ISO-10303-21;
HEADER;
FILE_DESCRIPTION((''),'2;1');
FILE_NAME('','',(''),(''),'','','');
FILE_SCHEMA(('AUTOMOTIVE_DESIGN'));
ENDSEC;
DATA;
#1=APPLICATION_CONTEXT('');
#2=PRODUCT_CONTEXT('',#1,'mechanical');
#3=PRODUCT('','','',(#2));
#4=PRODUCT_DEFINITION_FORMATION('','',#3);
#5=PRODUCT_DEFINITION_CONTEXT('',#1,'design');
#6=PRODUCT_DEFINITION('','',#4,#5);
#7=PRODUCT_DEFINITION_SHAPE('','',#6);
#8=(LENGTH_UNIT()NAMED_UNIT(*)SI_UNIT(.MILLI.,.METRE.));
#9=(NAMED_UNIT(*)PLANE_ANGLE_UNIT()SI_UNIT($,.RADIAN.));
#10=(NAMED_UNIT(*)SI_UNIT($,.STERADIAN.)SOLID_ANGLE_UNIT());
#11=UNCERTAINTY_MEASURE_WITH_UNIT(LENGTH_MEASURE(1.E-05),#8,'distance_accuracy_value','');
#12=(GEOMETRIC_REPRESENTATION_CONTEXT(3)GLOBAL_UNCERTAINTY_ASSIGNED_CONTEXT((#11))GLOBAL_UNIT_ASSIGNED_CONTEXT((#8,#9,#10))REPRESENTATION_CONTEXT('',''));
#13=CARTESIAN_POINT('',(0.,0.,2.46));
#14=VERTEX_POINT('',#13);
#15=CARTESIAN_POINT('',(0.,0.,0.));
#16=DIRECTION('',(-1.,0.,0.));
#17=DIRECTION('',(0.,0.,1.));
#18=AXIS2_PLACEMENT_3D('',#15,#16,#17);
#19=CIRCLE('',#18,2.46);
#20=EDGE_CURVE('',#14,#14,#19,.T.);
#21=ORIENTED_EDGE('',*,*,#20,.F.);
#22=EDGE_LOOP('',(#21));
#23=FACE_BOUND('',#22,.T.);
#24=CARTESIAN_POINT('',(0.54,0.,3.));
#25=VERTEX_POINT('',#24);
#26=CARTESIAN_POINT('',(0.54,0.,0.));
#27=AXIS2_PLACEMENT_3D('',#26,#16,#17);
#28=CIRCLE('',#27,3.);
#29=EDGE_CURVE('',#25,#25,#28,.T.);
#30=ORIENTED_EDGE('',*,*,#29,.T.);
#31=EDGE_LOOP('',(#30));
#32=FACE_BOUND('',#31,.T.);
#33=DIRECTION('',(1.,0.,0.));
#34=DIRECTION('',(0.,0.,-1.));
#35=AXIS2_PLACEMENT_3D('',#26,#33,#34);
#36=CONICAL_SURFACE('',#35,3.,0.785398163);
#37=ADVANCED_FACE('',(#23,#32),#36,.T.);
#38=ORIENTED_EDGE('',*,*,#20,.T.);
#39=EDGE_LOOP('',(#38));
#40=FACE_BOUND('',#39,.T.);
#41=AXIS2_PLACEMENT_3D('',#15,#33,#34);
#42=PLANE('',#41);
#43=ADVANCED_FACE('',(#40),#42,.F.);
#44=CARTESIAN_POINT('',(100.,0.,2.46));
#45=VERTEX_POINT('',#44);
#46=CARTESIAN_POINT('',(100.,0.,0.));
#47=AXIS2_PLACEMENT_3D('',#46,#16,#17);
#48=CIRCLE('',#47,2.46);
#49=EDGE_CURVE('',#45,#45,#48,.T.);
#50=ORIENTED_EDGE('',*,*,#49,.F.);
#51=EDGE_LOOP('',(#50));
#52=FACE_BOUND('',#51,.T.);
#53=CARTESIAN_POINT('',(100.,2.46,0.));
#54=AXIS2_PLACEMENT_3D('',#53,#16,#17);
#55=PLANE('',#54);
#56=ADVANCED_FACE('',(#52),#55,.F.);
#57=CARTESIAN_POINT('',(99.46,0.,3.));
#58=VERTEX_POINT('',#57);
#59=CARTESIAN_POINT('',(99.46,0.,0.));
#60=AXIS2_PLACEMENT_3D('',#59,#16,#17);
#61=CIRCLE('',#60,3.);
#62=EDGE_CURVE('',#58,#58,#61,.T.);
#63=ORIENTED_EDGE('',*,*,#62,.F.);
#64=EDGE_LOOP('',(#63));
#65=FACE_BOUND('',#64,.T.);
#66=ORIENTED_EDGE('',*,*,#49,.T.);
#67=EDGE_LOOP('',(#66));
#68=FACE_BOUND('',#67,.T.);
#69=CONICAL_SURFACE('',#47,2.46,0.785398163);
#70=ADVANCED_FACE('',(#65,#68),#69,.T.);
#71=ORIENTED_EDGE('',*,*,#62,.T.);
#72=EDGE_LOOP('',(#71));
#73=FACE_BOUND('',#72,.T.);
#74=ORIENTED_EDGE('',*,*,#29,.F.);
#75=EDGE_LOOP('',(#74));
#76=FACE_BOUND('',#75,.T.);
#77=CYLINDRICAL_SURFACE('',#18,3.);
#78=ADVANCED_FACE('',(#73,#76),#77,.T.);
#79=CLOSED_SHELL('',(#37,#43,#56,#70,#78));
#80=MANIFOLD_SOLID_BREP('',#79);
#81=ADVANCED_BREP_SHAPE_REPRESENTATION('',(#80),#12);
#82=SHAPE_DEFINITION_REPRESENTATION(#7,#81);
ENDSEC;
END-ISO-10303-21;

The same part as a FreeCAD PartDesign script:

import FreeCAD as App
import Part
import Sketcher

V = App.Vector
Q = App.Units.Quantity

doc = App.newDocument("Part")
body = doc.addObject("PartDesign::Body", "Body")

sketch1 = doc.addObject("Sketcher::SketchObject", "Sketch")
body.addObject(sketch1)
sketch1.AttachmentSupport = (doc.XY_Plane, [""])
sketch1.MapMode = "FlatFace"
sketch1.addGeometry([
    Part.LineSegment(V(0, 2.5, 0), V(0, 0, 0)),
    Part.LineSegment(V(0, 0, 0), V(100, 0, 0)),
    Part.LineSegment(V(100, 0, 0), V(100, 2.5, 0)),
    Part.LineSegment(V(100, 2.5, 0), V(99.5, 3, 0)),
    Part.LineSegment(V(99.5, 3, 0), V(0.5, 3, 0)),
    Part.LineSegment(V(0.5, 3, 0), V(0, 2.5, 0)),
], False)
sketch1.addConstraint([
    Sketcher.Constraint("Coincident", 0, 2, 1, 1),
    Sketcher.Constraint("Coincident", 1, 2, 2, 1),
    Sketcher.Constraint("Coincident", 2, 2, 3, 1),
    Sketcher.Constraint("Coincident", 3, 2, 4, 1),
    Sketcher.Constraint("Coincident", 4, 2, 5, 1),
    Sketcher.Constraint("Coincident", 5, 2, 0, 1),
    Sketcher.Constraint("Vertical", 0),
    Sketcher.Constraint("Horizontal", 1),
    Sketcher.Constraint("Vertical", 2),
    Sketcher.Constraint("Horizontal", 4),
    Sketcher.Constraint("Coincident", 0, 2, -1, 1),
    Sketcher.Constraint("Perpendicular", 3, 5),
    Sketcher.Constraint("Horizontal", 2, 2, 5, 2),
    Sketcher.Constraint("Equal", 3, 5),
    Sketcher.Constraint("DistanceX", 1, 1, 1, 2, Q("100 mm")),
    Sketcher.Constraint("DistanceY", -1, 1, 3, 2, Q("3 mm")),
    Sketcher.Constraint("DistanceX", 4, 2, 4, 1, Q("98.92 mm")),
])
revolution = doc.addObject("PartDesign::Revolution", "Revolution")
body.addObject(revolution)
revolution.Profile = sketch1
revolution.ReferenceAxis = (sketch1, ["H_Axis"])
revolution.Angle = 360

doc.recompute()
